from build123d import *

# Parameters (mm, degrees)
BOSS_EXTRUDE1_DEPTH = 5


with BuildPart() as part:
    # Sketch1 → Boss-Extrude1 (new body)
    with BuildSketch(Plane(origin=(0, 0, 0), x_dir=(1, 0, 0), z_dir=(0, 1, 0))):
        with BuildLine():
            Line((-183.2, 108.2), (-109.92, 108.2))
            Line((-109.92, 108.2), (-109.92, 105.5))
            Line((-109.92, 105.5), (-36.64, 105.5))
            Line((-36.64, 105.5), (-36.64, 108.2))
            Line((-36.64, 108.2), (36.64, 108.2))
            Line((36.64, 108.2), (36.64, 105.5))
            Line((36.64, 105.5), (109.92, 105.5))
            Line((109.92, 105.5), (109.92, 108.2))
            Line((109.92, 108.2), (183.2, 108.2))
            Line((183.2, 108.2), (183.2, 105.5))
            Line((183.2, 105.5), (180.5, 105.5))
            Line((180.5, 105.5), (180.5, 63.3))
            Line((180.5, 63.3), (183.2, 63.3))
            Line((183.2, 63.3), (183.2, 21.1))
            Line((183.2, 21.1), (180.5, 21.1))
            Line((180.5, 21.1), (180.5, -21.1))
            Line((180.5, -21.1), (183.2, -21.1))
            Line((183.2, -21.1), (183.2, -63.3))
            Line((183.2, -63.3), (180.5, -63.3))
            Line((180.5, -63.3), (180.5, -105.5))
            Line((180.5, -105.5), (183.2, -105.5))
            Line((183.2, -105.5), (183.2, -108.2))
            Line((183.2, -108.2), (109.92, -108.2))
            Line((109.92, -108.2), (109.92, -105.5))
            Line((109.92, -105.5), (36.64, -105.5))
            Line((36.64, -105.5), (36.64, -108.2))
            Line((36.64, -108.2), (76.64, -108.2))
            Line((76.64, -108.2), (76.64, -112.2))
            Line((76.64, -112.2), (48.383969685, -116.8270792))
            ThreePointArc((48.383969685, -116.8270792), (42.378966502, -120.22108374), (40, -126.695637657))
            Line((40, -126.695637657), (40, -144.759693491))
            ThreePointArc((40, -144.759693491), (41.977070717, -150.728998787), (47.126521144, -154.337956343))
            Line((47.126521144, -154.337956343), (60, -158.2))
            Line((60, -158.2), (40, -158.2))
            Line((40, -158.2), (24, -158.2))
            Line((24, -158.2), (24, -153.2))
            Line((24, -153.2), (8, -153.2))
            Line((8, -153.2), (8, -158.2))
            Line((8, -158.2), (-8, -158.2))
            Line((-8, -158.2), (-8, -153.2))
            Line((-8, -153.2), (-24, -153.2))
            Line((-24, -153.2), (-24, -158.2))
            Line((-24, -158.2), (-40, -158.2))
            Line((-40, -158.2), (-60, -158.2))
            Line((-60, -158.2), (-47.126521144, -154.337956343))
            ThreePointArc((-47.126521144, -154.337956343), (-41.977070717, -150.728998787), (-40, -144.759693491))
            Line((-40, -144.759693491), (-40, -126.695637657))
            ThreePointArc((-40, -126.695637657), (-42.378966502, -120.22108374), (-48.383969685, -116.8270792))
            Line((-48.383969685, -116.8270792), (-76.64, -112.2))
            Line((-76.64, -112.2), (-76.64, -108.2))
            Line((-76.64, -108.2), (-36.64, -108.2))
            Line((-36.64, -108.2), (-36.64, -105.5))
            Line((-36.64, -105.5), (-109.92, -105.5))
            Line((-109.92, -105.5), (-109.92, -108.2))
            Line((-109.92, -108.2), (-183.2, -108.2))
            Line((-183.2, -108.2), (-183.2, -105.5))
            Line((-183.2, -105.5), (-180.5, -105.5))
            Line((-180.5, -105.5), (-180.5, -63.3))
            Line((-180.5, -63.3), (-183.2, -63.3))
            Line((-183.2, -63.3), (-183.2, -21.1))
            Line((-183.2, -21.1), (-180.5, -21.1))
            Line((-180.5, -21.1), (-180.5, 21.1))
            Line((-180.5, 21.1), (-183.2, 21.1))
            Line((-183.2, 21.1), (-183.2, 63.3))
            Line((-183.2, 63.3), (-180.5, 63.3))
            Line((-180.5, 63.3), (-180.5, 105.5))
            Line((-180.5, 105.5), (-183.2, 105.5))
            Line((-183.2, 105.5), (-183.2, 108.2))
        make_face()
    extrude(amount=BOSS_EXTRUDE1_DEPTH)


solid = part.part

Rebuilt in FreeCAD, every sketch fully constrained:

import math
import FreeCAD as App
import Part
import Sketcher
Q = App.Units.Quantity

doc = App.newDocument("Part")
params = doc.addObject("Spreadsheet::Sheet", "Params")
for row, (alias, value) in enumerate([
    ("sketch1_radius", "10 mm"),
    ("sketch1_width", "40 mm"),
    ("sketch1_width2", "36 mm"),
    ("sketch1_width3", "16 mm"),
    ("sketch1_height", "4 mm"),
    ("pad1_length", "5 mm"),
], start=1):
    params.set(f"A{row}", alias)
    params.set(f"B{row}", "=" + value)
    params.setAlias(f"B{row}", alias)

body = doc.addObject("PartDesign::Body", "Body")

# Sketch on XZ plane
sketch1 = body.newObject("Sketcher::SketchObject", "Sketch")
sketch1.AttachmentSupport = (doc.getObject("XZ_Plane"), [""])
sketch1.MapMode = "FlatFace"
sketch1.addGeometry([
    Part.LineSegment(App.Vector(-109.9, -108.2, 0), App.Vector(-183.2, -108.2, 0)),  # 0
    Part.LineSegment(App.Vector(-183.2, -108.2, 0), App.Vector(-183.2, -105.5, 0)),  # 1
    Part.LineSegment(App.Vector(-183.2, -105.5, 0), App.Vector(-180.5, -105.5, 0)),  # 2
    Part.LineSegment(App.Vector(-180.5, -105.5, 0), App.Vector(-180.5, -63.3, 0)),  # 3
    Part.LineSegment(App.Vector(-180.5, -63.3, 0), App.Vector(-183.2, -63.3, 0)),  # 4
    Part.LineSegment(App.Vector(-183.2, -63.3, 0), App.Vector(-183.2, -21.1, 0)),  # 5
    Part.LineSegment(App.Vector(-183.2, -21.1, 0), App.Vector(-180.5, -21.1, 0)),  # 6
    Part.LineSegment(App.Vector(-180.5, -21.1, 0), App.Vector(-180.5, 21.1, 0)),  # 7
    Part.LineSegment(App.Vector(-180.5, 21.1, 0), App.Vector(-183.2, 21.1, 0)),  # 8
    Part.LineSegment(App.Vector(-183.2, 21.1, 0), App.Vector(-183.2, 63.3, 0)),  # 9
    Part.LineSegment(App.Vector(-183.2, 63.3, 0), App.Vector(-180.5, 63.3, 0)),  # 10
    Part.LineSegment(App.Vector(-180.5, 63.3, 0), App.Vector(-180.5, 105.5, 0)),  # 11
    Part.LineSegment(App.Vector(-180.5, 105.5, 0), App.Vector(-183.2, 105.5, 0)),  # 12
    Part.LineSegment(App.Vector(-183.2, 105.5, 0), App.Vector(-183.2, 108.2, 0)),  # 13
    Part.LineSegment(App.Vector(-183.2, 108.2, 0), App.Vector(-109.9, 108.2, 0)),  # 14
    Part.LineSegment(App.Vector(-109.9, 108.2, 0), App.Vector(-109.9, 105.5, 0)),  # 15
    Part.LineSegment(App.Vector(-109.9, 105.5, 0), App.Vector(-36.6, 105.5, 0)),  # 16
    Part.LineSegment(App.Vector(-36.6, 105.5, 0), App.Vector(-36.6, 108.2, 0)),  # 17
    Part.LineSegment(App.Vector(-36.6, 108.2, 0), App.Vector(-76.6, 108.2, 0)),  # 18
    Part.LineSegment(App.Vector(-76.6, 108.2, 0), App.Vector(-76.6, 112.2, 0)),  # 19
    Part.LineSegment(App.Vector(-76.6, 112.2, 0), App.Vector(-48.4, 116.8, 0)),  # 20
    Part.ArcOfCircle(Part.Circle(App.Vector(-50, 126.7, 0), App.Vector(0, 0, 1), 10), math.radians(-81), math.radians(0)),  # 21
    Part.LineSegment(App.Vector(-40, 126.7, 0), App.Vector(-40, 144.8, 0)),  # 22
    Part.ArcOfCircle(Part.Circle(App.Vector(-50, 144.8, 0), App.Vector(0, 0, 1), 10), math.radians(0), math.radians(73)),  # 23
    Part.LineSegment(App.Vector(-47.1, 154.3, 0), App.Vector(-60, 158.2, 0)),  # 24
    Part.LineSegment(App.Vector(-60, 158.2, 0), App.Vector(-24, 158.2, 0)),  # 25
    Part.LineSegment(App.Vector(-24, 158.2, 0), App.Vector(-24, 153.2, 0)),  # 26
    Part.LineSegment(App.Vector(-24, 153.2, 0), App.Vector(-8, 153.2, 0)),  # 27
    Part.LineSegment(App.Vector(-8, 153.2, 0), App.Vector(-8, 158.2, 0)),  # 28
    Part.LineSegment(App.Vector(-8, 158.2, 0), App.Vector(8, 158.2, 0)),  # 29
    Part.LineSegment(App.Vector(8, 158.2, 0), App.Vector(8, 153.2, 0)),  # 30
    Part.LineSegment(App.Vector(8, 153.2, 0), App.Vector(24, 153.2, 0)),  # 31
    Part.LineSegment(App.Vector(24, 153.2, 0), App.Vector(24, 158.2, 0)),  # 32
    Part.LineSegment(App.Vector(24, 158.2, 0), App.Vector(60, 158.2, 0)),  # 33
    Part.LineSegment(App.Vector(60, 158.2, 0), App.Vector(47.1, 154.3, 0)),  # 34
    Part.ArcOfCircle(Part.Circle(App.Vector(50, 144.8, 0), App.Vector(0, 0, 1), 10), math.radians(107), math.radians(180)),  # 35
    Part.LineSegment(App.Vector(40, 144.8, 0), App.Vector(40, 126.7, 0)),  # 36
    Part.ArcOfCircle(Part.Circle(App.Vector(50, 126.7, 0), App.Vector(0, 0, 1), 10), math.radians(180), math.radians(261)),  # 37
    Part.LineSegment(App.Vector(48.4, 116.8, 0), App.Vector(76.6, 112.2, 0)),  # 38
    Part.LineSegment(App.Vector(76.6, 112.2, 0), App.Vector(76.6, 108.2, 0)),  # 39
    Part.LineSegment(App.Vector(76.6, 108.2, 0), App.Vector(36.6, 108.2, 0)),  # 40
    Part.LineSegment(App.Vector(36.6, 108.2, 0), App.Vector(36.6, 105.5, 0)),  # 41
    Part.LineSegment(App.Vector(36.6, 105.5, 0), App.Vector(109.9, 105.5, 0)),  # 42
    Part.LineSegment(App.Vector(109.9, 105.5, 0), App.Vector(109.9, 108.2, 0)),  # 43
    Part.LineSegment(App.Vector(109.9, 108.2, 0), App.Vector(183.2, 108.2, 0)),  # 44
    Part.LineSegment(App.Vector(183.2, 108.2, 0), App.Vector(183.2, 105.5, 0)),  # 45
    Part.LineSegment(App.Vector(183.2, 105.5, 0), App.Vector(180.5, 105.5, 0)),  # 46
    Part.LineSegment(App.Vector(180.5, 105.5, 0), App.Vector(180.5, 63.3, 0)),  # 47
    Part.LineSegment(App.Vector(180.5, 63.3, 0), App.Vector(183.2, 63.3, 0)),  # 48
    Part.LineSegment(App.Vector(183.2, 63.3, 0), App.Vector(183.2, 21.1, 0)),  # 49
    Part.LineSegment(App.Vector(183.2, 21.1, 0), App.Vector(180.5, 21.1, 0)),  # 50
    Part.LineSegment(App.Vector(180.5, 21.1, 0), App.Vector(180.5, -21.1, 0)),  # 51
    Part.LineSegment(App.Vector(180.5, -21.1, 0), App.Vector(183.2, -21.1, 0)),  # 52
    Part.LineSegment(App.Vector(183.2, -21.1, 0), App.Vector(183.2, -63.3, 0)),  # 53
    Part.LineSegment(App.Vector(183.2, -63.3, 0), App.Vector(180.5, -63.3, 0)),  # 54
    Part.LineSegment(App.Vector(180.5, -63.3, 0), App.Vector(180.5, -105.5, 0)),  # 55
    Part.LineSegment(App.Vector(180.5, -105.5, 0), App.Vector(183.2, -105.5, 0)),  # 56
    Part.LineSegment(App.Vector(183.2, -105.5, 0), App.Vector(183.2, -108.2, 0)),  # 57
    Part.LineSegment(App.Vector(183.2, -108.2, 0), App.Vector(109.9, -108.2, 0)),  # 58
    Part.LineSegment(App.Vector(109.9, -108.2, 0), App.Vector(109.9, -105.5, 0)),  # 59
    Part.LineSegment(App.Vector(109.9, -105.5, 0), App.Vector(36.6, -105.5, 0)),  # 60
    Part.LineSegment(App.Vector(36.6, -105.5, 0), App.Vector(36.6, -108.2, 0)),  # 61
    Part.LineSegment(App.Vector(36.6, -108.2, 0), App.Vector(-36.6, -108.2, 0)),  # 62
    Part.LineSegment(App.Vector(-36.6, -108.2, 0), App.Vector(-36.6, -105.5, 0)),  # 63
    Part.LineSegment(App.Vector(-36.6, -105.5, 0), App.Vector(-109.9, -105.5, 0)),  # 64
    Part.LineSegment(App.Vector(-109.9, -105.5, 0), App.Vector(-109.9, -108.2, 0)),  # 65
], False)
sketch1.addConstraint([
    Sketcher.Constraint("Coincident", 0, 2, 1, 1),
    Sketcher.Constraint("Coincident", 1, 2, 2, 1),
    Sketcher.Constraint("Coincident", 2, 2, 3, 1),
    Sketcher.Constraint("Coincident", 3, 2, 4, 1),
    Sketcher.Constraint("Coincident", 4, 2, 5, 1),
    Sketcher.Constraint("Coincident", 5, 2, 6, 1),
    Sketcher.Constraint("Coincident", 6, 2, 7, 1),
    Sketcher.Constraint("Coincident", 7, 2, 8, 1),
    Sketcher.Constraint("Coincident", 8, 2, 9, 1),
    Sketcher.Constraint("Coincident", 9, 2, 10, 1),
    Sketcher.Constraint("Coincident", 10, 2, 11, 1),
    Sketcher.Constraint("Coincident", 11, 2, 12, 1),
    Sketcher.Constraint("Coincident", 12, 2, 13, 1),
    Sketcher.Constraint("Coincident", 13, 2, 14, 1),
    Sketcher.Constraint("Coincident", 14, 2, 15, 1),
    Sketcher.Constraint("Coincident", 15, 2, 16, 1),
    Sketcher.Constraint("Coincident", 16, 2, 17, 1),
    Sketcher.Constraint("Coincident", 17, 2, 18, 1),
    Sketcher.Constraint("Coincident", 18, 2, 19, 1),
    Sketcher.Constraint("Coincident", 19, 2, 20, 1),
    Sketcher.Constraint("Tangent", 20, 2, 21, 1),
    Sketcher.Constraint("Tangent", 21, 2, 22, 1),
    Sketcher.Constraint("Tangent", 22, 2, 23, 1),
    Sketcher.Constraint("Tangent", 23, 2, 24, 1),
    Sketcher.Constraint("Coincident", 24, 2, 25, 1),
    Sketcher.Constraint("Coincident", 25, 2, 26, 1),
    Sketcher.Constraint("Coincident", 26, 2, 27, 1),
    Sketcher.Constraint("Coincident", 27, 2, 28, 1),
    Sketcher.Constraint("Coincident", 28, 2, 29, 1),
    Sketcher.Constraint("Coincident", 29, 2, 30, 1),
    Sketcher.Constraint("Coincident", 30, 2, 31, 1),
    Sketcher.Constraint("Coincident", 31, 2, 32, 1),
    Sketcher.Constraint("Coincident", 32, 2, 33, 1),
    Sketcher.Constraint("Coincident", 33, 2, 34, 1),
    Sketcher.Constraint("Tangent", 34, 2, 35, 1),
    Sketcher.Constraint("Tangent", 35, 2, 36, 1),
    Sketcher.Constraint("Tangent", 36, 2, 37, 1),
    Sketcher.Constraint("Tangent", 37, 2, 38, 1),
    Sketcher.Constraint("Coincident", 38, 2, 39, 1),
    Sketcher.Constraint("Coincident", 39, 2, 40, 1),
    Sketcher.Constraint("Coincident", 40, 2, 41, 1),
    Sketcher.Constraint("Coincident", 41, 2, 42, 1),
    Sketcher.Constraint("Coincident", 42, 2, 43, 1),
    Sketcher.Constraint("Coincident", 43, 2, 44, 1),
    Sketcher.Constraint("Coincident", 44, 2, 45, 1),
    Sketcher.Constraint("Coincident", 45, 2, 46, 1),
    Sketcher.Constraint("Coincident", 46, 2, 47, 1),
    Sketcher.Constraint("Coincident", 47, 2, 48, 1),
    Sketcher.Constraint("Coincident", 48, 2, 49, 1),
    Sketcher.Constraint("Coincident", 49, 2, 50, 1),
    Sketcher.Constraint("Coincident", 50, 2, 51, 1),
    Sketcher.Constraint("Coincident", 51, 2, 52, 1),
    Sketcher.Constraint("Coincident", 52, 2, 53, 1),
    Sketcher.Constraint("Coincident", 53, 2, 54, 1),
    Sketcher.Constraint("Coincident", 54, 2, 55, 1),
    Sketcher.Constraint("Coincident", 55, 2, 56, 1),
    Sketcher.Constraint("Coincident", 56, 2, 57, 1),
    Sketcher.Constraint("Coincident", 57, 2, 58, 1),
    Sketcher.Constraint("Coincident", 58, 2, 59, 1),
    Sketcher.Constraint("Coincident", 59, 2, 60, 1),
    Sketcher.Constraint("Coincident", 60, 2, 61, 1),
    Sketcher.Constraint("Coincident", 61, 2, 62, 1),
    Sketcher.Constraint("Coincident", 62, 2, 63, 1),
    Sketcher.Constraint("Coincident", 63, 2, 64, 1),
    Sketcher.Constraint("Coincident", 64, 2, 65, 1),
    Sketcher.Constraint("Coincident", 65, 2, 0, 1),
    Sketcher.Constraint("Horizontal", 0),
    Sketcher.Constraint("Vertical", 1),
    Sketcher.Constraint("Horizontal", 2),
    Sketcher.Constraint("Vertical", 3),
    Sketcher.Constraint("Horizontal", 4),
    Sketcher.Constraint("Vertical", 5),
    Sketcher.Constraint("Horizontal", 6),
    Sketcher.Constraint("Vertical", 7),
    Sketcher.Constraint("Horizontal", 8),
    Sketcher.Constraint("Vertical", 9),
    Sketcher.Constraint("Horizontal", 10),
    Sketcher.Constraint("Vertical", 11),
    Sketcher.Constraint("Horizontal", 12),
    Sketcher.Constraint("Vertical", 13),
    Sketcher.Constraint("Horizontal", 14),
    Sketcher.Constraint("Vertical", 15),
    Sketcher.Constraint("Horizontal", 16),
    Sketcher.Constraint("Vertical", 17),
    Sketcher.Constraint("Horizontal", 18),
    Sketcher.Constraint("Vertical", 19),
    Sketcher.Constraint("Vertical", 22),
    Sketcher.Constraint("Horizontal", 25),
    Sketcher.Constraint("Vertical", 26),
    Sketcher.Constraint("Horizontal", 27),
    Sketcher.Constraint("Vertical", 28),
    Sketcher.Constraint("Horizontal", 29),
    Sketcher.Constraint("Vertical", 30),
    Sketcher.Constraint("Horizontal", 31),
    Sketcher.Constraint("Vertical", 32),
    Sketcher.Constraint("Horizontal", 33),
    Sketcher.Constraint("Vertical", 36),
    Sketcher.Constraint("Vertical", 39),
    Sketcher.Constraint("Horizontal", 40),
    Sketcher.Constraint("Vertical", 41),
    Sketcher.Constraint("Horizontal", 42),
    Sketcher.Constraint("Vertical", 43),
    Sketcher.Constraint("Horizontal", 44),
    Sketcher.Constraint("Vertical", 45),
    Sketcher.Constraint("Horizontal", 46),
    Sketcher.Constraint("Vertical", 47),
    Sketcher.Constraint("Horizontal", 48),
    Sketcher.Constraint("Vertical", 49),
    Sketcher.Constraint("Horizontal", 50),
    Sketcher.Constraint("Vertical", 51),
    Sketcher.Constraint("Horizontal", 52),
    Sketcher.Constraint("Vertical", 53),
    Sketcher.Constraint("Horizontal", 54),
    Sketcher.Constraint("Vertical", 55),
    Sketcher.Constraint("Horizontal", 56),
    Sketcher.Constraint("Vertical", 57),
    Sketcher.Constraint("Horizontal", 58),
    Sketcher.Constraint("Vertical", 59),
    Sketcher.Constraint("Horizontal", 60),
    Sketcher.Constraint("Vertical", 61),
    Sketcher.Constraint("Horizontal", 62),
    Sketcher.Constraint("Vertical", 63),
    Sketcher.Constraint("Horizontal", 64),
    Sketcher.Constraint("Vertical", 65),
    Sketcher.Constraint("Equal", 21, 23),
    Sketcher.Constraint("Equal", 23, 35),
    Sketcher.Constraint("Equal", 35, 37),
    Sketcher.Constraint("Symmetric", 0, 2, 44, 2, -1, 1),
    Sketcher.Constraint("Symmetric", 2, 2, 46, 2, -1, 1),
    Sketcher.Constraint("Symmetric", 4, 2, 48, 2, -1, 1),
    Sketcher.Constraint("Symmetric", 6, 2, 50, 2, -1, 1),
    Sketcher.Constraint("Symmetric", 8, 2, 52, 2, -1, 1),
    Sketcher.Constraint("Symmetric", 10, 2, 54, 2, -1, 1),
    Sketcher.Constraint("Symmetric", 12, 2, 56, 2, -1, 1),
    Sketcher.Constraint("Symmetric", 14, 2, 58, 2, -1, 1),
    Sketcher.Constraint("Symmetric", 16, 2, 60, 2, -1, 1),
    Sketcher.Constraint("Symmetric", 40, 2, 62, 2, -1, 1),
    Sketcher.Constraint("Symmetric", 42, 2, 64, 2, -1, 1),
    Sketcher.Constraint("Symmetric", 23, 3, 35, 3, -2),
    Sketcher.Constraint("Symmetric", 27, 2, 30, 2, -2),
    Sketcher.Constraint("Symmetric", 25, 2, 32, 2, -2),
    Sketcher.Constraint("Symmetric", 20, 2, 37, 2, -2),
    Sketcher.Constraint("Symmetric", 18, 2, 39, 2, -2),
    Sketcher.Constraint("Symmetric", 16, 2, 41, 2, -2),
    Sketcher.Constraint("Symmetric", 14, 2, 43, 2, -2),
    Sketcher.Constraint("Symmetric", 12, 2, 45, 2, -2),
    Sketcher.Constraint("Symmetric", 10, 2, 47, 2, -2),
    Sketcher.Constraint("Symmetric", 8, 2, 49, 2, -2),
    Sketcher.Constraint("Horizontal", 12, 2, 15, 2),
    Sketcher.Constraint("Horizontal", 14, 2, 17, 2),
    Sketcher.Constraint("Horizontal", 25, 2, 28, 2),
    Sketcher.Constraint("Horizontal", 23, 2, 34, 2),
    Sketcher.Constraint("Vertical", 1, 2, 4, 2),
    Sketcher.Constraint("Vertical", 3, 2, 6, 2),
    Sketcher.Constraint("Equal", 14, 16),
    Sketcher.Constraint("Equal", 27, 29),
    Sketcher.Constraint("Equal", 60, 62),
    Sketcher.Constraint("Equal", 56, 1),
    Sketcher.Constraint("Equal", 3, 5),
    Sketcher.Constraint("Equal", 5, 7),
    Sketcher.Constraint("Radius", 21, Q("10 mm")),
    Sketcher.Constraint("DistanceX", 18, 2, 18, 1, Q("40 mm")),
    Sketcher.Constraint("DistanceX", 25, 1, 25, 2, Q("36 mm")),
    Sketcher.Constraint("DistanceX", 27, 1, 27, 2, Q("16 mm")),
    Sketcher.Constraint("DistanceY", 19, 1, 19, 2, Q("4 mm")),
    Sketcher.Constraint("DistanceY", 26, 2, 26, 1, Q("5 mm")),
    Sketcher.Constraint("DistanceX", 2, 1, 2, 2, Q("2.7 mm")),
    Sketcher.Constraint("DistanceY", 3, 1, 3, 2, Q("42.2 mm")),
    Sketcher.Constraint("DistanceX", 21, 3, -1, 1, Q("50 mm")),
    Sketcher.Constraint("DistanceX", 0, 2, 0, 1, Q("73.28 mm")),
    Sketcher.Constraint("DistanceY", -1, 1, 24, 2, Q("158.2 mm")),
    Sketcher.Constraint("Distance", 20, Q("28.632379 mm")),
    Sketcher.Constraint("DistanceY", 22, 1, 22, 2, Q("18.064056 mm")),
])
sketch1.setExpression("Constraints[160]", "Params.sketch1_radius")
sketch1.setExpression("Constraints[161]", "Params.sketch1_width")
sketch1.setExpression("Constraints[162]", "Params.sketch1_width2")
sketch1.setExpression("Constraints[163]", "Params.sketch1_width3")
sketch1.setExpression("Constraints[164]", "Params.sketch1_height")
pad1 = body.newObject("PartDesign::Pad", "Pad")
pad1.Profile = sketch1
pad1.setExpression("Length", "Params.pad1_length")
pad1.Reversed = True

doc.recompute()
